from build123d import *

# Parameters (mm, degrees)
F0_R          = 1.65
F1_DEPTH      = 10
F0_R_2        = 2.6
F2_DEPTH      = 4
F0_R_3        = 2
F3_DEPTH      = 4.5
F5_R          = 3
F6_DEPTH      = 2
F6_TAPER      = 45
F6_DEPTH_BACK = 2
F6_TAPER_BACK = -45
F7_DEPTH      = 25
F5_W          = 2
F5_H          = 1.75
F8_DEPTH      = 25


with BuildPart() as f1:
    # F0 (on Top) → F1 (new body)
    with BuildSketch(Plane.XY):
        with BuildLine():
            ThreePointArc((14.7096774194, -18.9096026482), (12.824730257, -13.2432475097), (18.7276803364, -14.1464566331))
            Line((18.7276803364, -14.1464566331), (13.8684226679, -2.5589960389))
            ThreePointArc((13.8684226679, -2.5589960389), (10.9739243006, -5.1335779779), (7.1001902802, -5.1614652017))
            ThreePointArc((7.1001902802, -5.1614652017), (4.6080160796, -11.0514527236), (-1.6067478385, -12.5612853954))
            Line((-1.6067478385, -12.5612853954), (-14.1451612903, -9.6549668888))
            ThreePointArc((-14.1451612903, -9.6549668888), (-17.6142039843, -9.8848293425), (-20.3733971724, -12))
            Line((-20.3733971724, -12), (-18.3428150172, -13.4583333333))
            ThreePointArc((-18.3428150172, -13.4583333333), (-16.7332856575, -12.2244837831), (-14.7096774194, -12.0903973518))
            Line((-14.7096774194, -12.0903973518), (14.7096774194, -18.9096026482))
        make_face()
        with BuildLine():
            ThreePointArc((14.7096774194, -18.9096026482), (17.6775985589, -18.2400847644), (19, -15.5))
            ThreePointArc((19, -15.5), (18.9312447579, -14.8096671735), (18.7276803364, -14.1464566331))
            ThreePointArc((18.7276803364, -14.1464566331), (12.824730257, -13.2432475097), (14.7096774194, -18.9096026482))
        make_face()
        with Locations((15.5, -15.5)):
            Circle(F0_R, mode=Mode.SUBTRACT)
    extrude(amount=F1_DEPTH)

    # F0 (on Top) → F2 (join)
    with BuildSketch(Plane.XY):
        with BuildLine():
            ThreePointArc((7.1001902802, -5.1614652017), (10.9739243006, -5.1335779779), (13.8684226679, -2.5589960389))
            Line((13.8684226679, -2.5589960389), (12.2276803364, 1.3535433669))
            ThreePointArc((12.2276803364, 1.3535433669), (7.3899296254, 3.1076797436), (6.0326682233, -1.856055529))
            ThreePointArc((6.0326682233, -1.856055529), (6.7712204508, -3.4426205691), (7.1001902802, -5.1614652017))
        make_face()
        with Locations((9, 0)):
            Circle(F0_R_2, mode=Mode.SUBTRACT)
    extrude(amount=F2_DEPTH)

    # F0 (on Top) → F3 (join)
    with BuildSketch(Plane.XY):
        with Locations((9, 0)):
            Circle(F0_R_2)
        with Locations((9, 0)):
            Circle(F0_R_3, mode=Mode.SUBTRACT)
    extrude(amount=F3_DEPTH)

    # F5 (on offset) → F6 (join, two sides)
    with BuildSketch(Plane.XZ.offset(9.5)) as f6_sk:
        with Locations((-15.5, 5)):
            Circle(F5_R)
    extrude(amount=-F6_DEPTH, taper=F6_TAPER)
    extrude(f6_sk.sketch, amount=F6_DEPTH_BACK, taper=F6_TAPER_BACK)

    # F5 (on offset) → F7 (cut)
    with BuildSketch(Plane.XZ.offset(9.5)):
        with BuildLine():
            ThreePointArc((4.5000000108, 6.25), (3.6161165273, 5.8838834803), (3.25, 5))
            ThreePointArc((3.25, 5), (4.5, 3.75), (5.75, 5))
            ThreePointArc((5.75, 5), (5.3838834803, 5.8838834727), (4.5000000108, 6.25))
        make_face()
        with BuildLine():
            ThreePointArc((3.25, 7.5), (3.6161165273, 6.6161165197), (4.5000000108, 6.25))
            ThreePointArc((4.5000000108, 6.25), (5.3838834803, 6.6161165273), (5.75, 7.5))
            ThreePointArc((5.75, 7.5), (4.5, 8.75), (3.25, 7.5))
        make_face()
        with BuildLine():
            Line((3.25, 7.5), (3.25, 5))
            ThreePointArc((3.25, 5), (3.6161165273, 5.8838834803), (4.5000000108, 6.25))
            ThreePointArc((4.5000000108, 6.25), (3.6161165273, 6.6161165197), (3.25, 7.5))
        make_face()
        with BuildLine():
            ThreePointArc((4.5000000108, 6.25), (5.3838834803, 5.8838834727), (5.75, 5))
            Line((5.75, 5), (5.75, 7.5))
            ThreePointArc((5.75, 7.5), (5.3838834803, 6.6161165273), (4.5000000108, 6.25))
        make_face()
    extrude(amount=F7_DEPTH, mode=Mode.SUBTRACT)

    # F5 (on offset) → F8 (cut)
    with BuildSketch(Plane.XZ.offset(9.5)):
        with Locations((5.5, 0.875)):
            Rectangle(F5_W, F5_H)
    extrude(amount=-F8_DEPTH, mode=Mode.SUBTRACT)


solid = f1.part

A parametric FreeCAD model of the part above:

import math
import FreeCAD as App
import Part
import Sketcher

V = App.Vector

doc = App.newDocument("Part")
body = doc.addObject("PartDesign::Body", "Body")
body.AllowCompound = True

# Sketch on XY plane
sketch1 = doc.addObject("Sketcher::SketchObject", "Sketch")
body.addObject(sketch1)
sketch1.AttachmentSupport = (doc.XY_Plane, [""])
sketch1.MapMode = "FlatFace"
sketch1.addGeometry(Part.LineSegment(V(18.72768, -14.146457, 0), V(13.868423, -2.558996, 0)), False)
sketch1.addGeometry(Part.ArcOfCircle(Part.Circle(V(9, 0, 0), V(0, 0, 1), 5.5), math.radians(-110.207433), math.radians(-27.727827)), False)
sketch1.addGeometry(Part.ArcOfCircle(Part.Circle(V(0, -5.629468, 0), V(0, 0, 1), 7.115598), math.radians(-103.050305), math.radians(3.771147)), False)
sketch1.addGeometry(Part.LineSegment(V(-1.606748, -12.561285, 0), V(-14.145161, -9.654967, 0)), False)
sketch1.addGeometry(Part.ArcOfCircle(Part.Circle(V(-15.5, -15.5, 0), V(0, 0, 1), 6), math.radians(76.949695), math.radians(144.314665)), False)
sketch1.addGeometry(Part.LineSegment(V(-20.373397, -12, 0), V(-18.342815, -13.458333, 0)), False)
sketch1.addGeometry(Part.ArcOfCircle(Part.Circle(V(-15.5, -15.5, 0), V(0, 0, 1), 3.5), math.radians(76.949695), math.radians(144.314665)), False)
sketch1.addGeometry(Part.LineSegment(V(-14.709677, -12.090397, 0), V(14.709677, -18.909603, 0)), False)
sketch1.addGeometry(Part.ArcOfCircle(Part.Circle(V(15.5, -15.5, 0), V(0, 0, 1), 3.5), math.radians(-103.050305), math.radians(0)), False)
sketch1.addGeometry(Part.ArcOfCircle(Part.Circle(V(15.5, -15.5, 0), V(0, 0, 1), 3.5), math.radians(0), math.radians(22.750976)), False)
sketch1.addGeometry(Part.Circle(V(15.5, -15.5, 0), V(0, 0, 1), 1.65), False)
sketch1.addConstraint(Sketcher.Constraint("Coincident", 0, 2, 1, 2))
sketch1.addConstraint(Sketcher.Constraint("Coincident", 1, 1, 2, 2))
sketch1.addConstraint(Sketcher.Constraint("Tangent", 2, 1, 3, 1))
sketch1.addConstraint(Sketcher.Constraint("Tangent", 3, 2, 4, 1))
sketch1.addConstraint(Sketcher.Constraint("Coincident", 4, 2, 5, 1))
sketch1.addConstraint(Sketcher.Constraint("Coincident", 5, 2, 6, 2))
sketch1.addConstraint(Sketcher.Constraint("Tangent", 6, 1, 7, 1))
sketch1.addConstraint(Sketcher.Constraint("Tangent", 7, 2, 8, 1))
sketch1.addConstraint(Sketcher.Constraint("Tangent", 8, 2, 9, 1))
sketch1.addConstraint(Sketcher.Constraint("Tangent", 9, 2, 0, 1))
sketch1.addConstraint(Sketcher.Constraint("Coincident", 6, 3, 4, 3))
sketch1.addConstraint(Sketcher.Constraint("Coincident", 10, 3, 8, 3))
sketch1.addConstraint(Sketcher.Constraint("Equal", 6, 8))
sketch1.addConstraint(Sketcher.Constraint("Equal", 8, 9))
sketch1.addConstraint(Sketcher.Constraint("Symmetric", 4, 3, 8, 3, -2))
sketch1.addConstraint(Sketcher.Constraint("PointOnObject", 1, 3, -1))
sketch1.addConstraint(Sketcher.Constraint("PointOnObject", 2, 3, -2))
sketch1.addConstraint(Sketcher.Constraint("Parallel", 3, 7))
sketch1.addConstraint(Sketcher.Constraint("Horizontal", 10, 3, 8, 2))
sketch1.addConstraint(Sketcher.Constraint("Radius", 4, 6.0))
sketch1.addConstraint(Sketcher.Constraint("Diameter", 10, 3.3))
sketch1.addConstraint(Sketcher.Constraint("Radius", 1, 5.5))
sketch1.addConstraint(Sketcher.Constraint("Radius", 6, 3.5))
sketch1.addConstraint(Sketcher.Constraint("DistanceX", -1, 1, 1, 3, 9.0))
sketch1.addConstraint(Sketcher.Constraint("DistanceY", 4, 2, -1, 1, 12.0))
sketch1.addConstraint(Sketcher.Constraint("DistanceX", -1, 1, 8, 2, 19.0))
sketch1.addConstraint(Sketcher.Constraint("DistanceY", 4, 3, -1, 1, 15.5))
sketch1.addConstraint(Sketcher.Constraint("Radius", 2, 7.115598))
sketch1.addConstraint(Sketcher.Constraint("DistanceX", -1, 1, 9, 2, 18.72768))
sketch1.addConstraint(Sketcher.Constraint("DistanceX", 5, 2, -1, 1, 18.342815))
pad1 = doc.addObject("PartDesign::Pad", "Pad")
body.addObject(pad1)
pad1.Profile = sketch1
pad1.Length = 10

# Sketch on XY plane
sketch2 = doc.addObject("Sketcher::SketchObject", "Sketch001")
body.addObject(sketch2)
sketch2.AttachmentSupport = (doc.XY_Plane, [""])
sketch2.MapMode = "FlatFace"
sketch2.addGeometry(Part.ArcOfCircle(Part.Circle(V(9, 0, 0), V(0, 0, 1), 5.5), math.radians(-110.207433), math.radians(-27.727827)), False)
sketch2.addGeometry(Part.LineSegment(V(13.868423, -2.558996, 0), V(12.22768, 1.353543, 0)), False)
sketch2.addGeometry(Part.ArcOfCircle(Part.Circle(V(9, 0, 0), V(0, 0, 1), 3.5), math.radians(22.750976), math.radians(212.025834)), False)
sketch2.addGeometry(Part.ArcOfCircle(Part.Circle(V(0, -5.629468, 0), V(0, 0, 1), 7.115598), math.radians(3.771147), math.radians(32.025834)), False)
sketch2.addGeometry(Part.Circle(V(9, 0, 0), V(0, 0, 1), 2.6), False)
sketch2.addConstraint(Sketcher.Constraint("Coincident", 0, 2, 1, 1))
sketch2.addConstraint(Sketcher.Constraint("Tangent", 1, 2, 2, 1))
sketch2.addConstraint(Sketcher.Constraint("Tangent", 2, 2, 3, 2))
sketch2.addConstraint(Sketcher.Constraint("Coincident", 3, 1, 0, 1))
sketch2.addConstraint(Sketcher.Constraint("Coincident", 2, 3, 0, 3))
sketch2.addConstraint(Sketcher.Constraint("Coincident", 4, 3, 0, 3))
sketch2.addConstraint(Sketcher.Constraint("PointOnObject", 0, 3, -1))
sketch2.addConstraint(Sketcher.Constraint("PointOnObject", 3, 3, -2))
sketch2.addConstraint(Sketcher.Constraint("Diameter", 4, 5.2))
sketch2.addConstraint(Sketcher.Constraint("Radius", 0, 5.5))
sketch2.addConstraint(Sketcher.Constraint("Radius", 2, 3.5))
sketch2.addConstraint(Sketcher.Constraint("DistanceX", -1, 1, 0, 3, 9.0))
sketch2.addConstraint(Sketcher.Constraint("Radius", 3, 7.115598))
sketch2.addConstraint(Sketcher.Constraint("DistanceY", 2, 2, 1, 2, 3.209599))
pad2 = doc.addObject("PartDesign::Pad", "Pad001")
body.addObject(pad2)
pad2.Profile = sketch2
pad2.Length = 4

# Sketch on XY plane
sketch3 = doc.addObject("Sketcher::SketchObject", "Sketch002")
body.addObject(sketch3)
sketch3.AttachmentSupport = (doc.XY_Plane, [""])
sketch3.MapMode = "FlatFace"
sketch3.addGeometry(Part.Circle(V(9, 0, 0), V(0, 0, 1), 2.6), False)
sketch3.addGeometry(Part.Circle(V(9, 0, 0), V(0, 0, 1), 2), False)
sketch3.addConstraint(Sketcher.Constraint("Coincident", 1, 3, 0, 3))
sketch3.addConstraint(Sketcher.Constraint("PointOnObject", 0, 3, -1))
sketch3.addConstraint(Sketcher.Constraint("Diameter", 1, 4.0))
sketch3.addConstraint(Sketcher.Constraint("Diameter", 0, 5.2))
sketch3.addConstraint(Sketcher.Constraint("DistanceX", -1, 1, 0, 3, 9.0))
pad3 = doc.addObject("PartDesign::Pad", "Pad002")
body.addObject(pad3)
pad3.Profile = sketch3
pad3.Length = 4.5

# Sketch on XZ plane
sketch4 = doc.addObject("Sketcher::SketchObject", "Sketch003")
body.addObject(sketch4)
sketch4.AttachmentSupport = (doc.XZ_Plane, [""])
sketch4.MapMode = "FlatFace"
sketch4.AttachmentOffset = App.Placement(V(0, 0, 9.5), App.Rotation())
sketch4.addGeometry(Part.Circle(V(-15.5, 5, 0), V(0, 0, 1), 3), False)
sketch4.addConstraint(Sketcher.Constraint("Diameter", 0, 6.0))
sketch4.addConstraint(Sketcher.Constraint("DistanceY", -1, 1, 0, 3, 5.0))
sketch4.addConstraint(Sketcher.Constraint("DistanceX", 0, 3, -1, 1, 15.5))
pad4 = doc.addObject("PartDesign::Pad", "Pad003")
body.addObject(pad4)
pad4.Profile = sketch4
pad4.Length = 2
pad4.Reversed = True
pad4.TaperAngle = -45
pad5 = doc.addObject("PartDesign::Pad", "Pad004")
body.addObject(pad5)
pad5.Profile = sketch4
pad5.Length = 2
pad5.TaperAngle = 45

# Sketch on XZ plane
sketch5 = doc.addObject("Sketcher::SketchObject", "Sketch004")
body.addObject(sketch5)
sketch5.AttachmentSupport = (doc.XZ_Plane, [""])
sketch5.MapMode = "FlatFace"
sketch5.AttachmentOffset = App.Placement(V(0, 0, 9.5), App.Rotation())
sketch5.addGeometry(Part.ArcOfCircle(Part.Circle(V(4.5, 5, 0), V(0, 0, 1), 1.25), math.radians(180), math.radians(360)), False)
sketch5.addGeometry(Part.LineSegment(V(5.75, 5, 0), V(5.75, 7.5, 0)), False)
sketch5.addGeometry(Part.ArcOfCircle(Part.Circle(V(4.5, 7.5, 0), V(0, 0, 1), 1.25), math.radians(0), math.radians(180)), False)
sketch5.addGeometry(Part.LineSegment(V(3.25, 7.5, 0), V(3.25, 5, 0)), False)
sketch5.addConstraint(Sketcher.Constraint("Tangent", 0, 2, 1, 1))
sketch5.addConstraint(Sketcher.Constraint("Tangent", 1, 2, 2, 1))
sketch5.addConstraint(Sketcher.Constraint("Tangent", 2, 2, 3, 1))
sketch5.addConstraint(Sketcher.Constraint("Tangent", 3, 2, 0, 1))
sketch5.addConstraint(Sketcher.Constraint("Vertical", 1))
sketch5.addConstraint(Sketcher.Constraint("Vertical", 3))
sketch5.addConstraint(Sketcher.Constraint("Radius", 0, 1.25))
sketch5.addConstraint(Sketcher.Constraint("DistanceY", 1, 1, 1, 2, 2.5))
sketch5.addConstraint(Sketcher.Constraint("DistanceY", -1, 1, 0, 3, 5.0))
sketch5.addConstraint(Sketcher.Constraint("DistanceX", -1, 1, 0, 3, 4.5))
pocket1 = doc.addObject("PartDesign::Pocket", "Pocket")
body.addObject(pocket1)
pocket1.Profile = sketch5
pocket1.Length = 25
pocket1.Reversed = True

# Sketch on XZ plane
sketch6 = doc.addObject("Sketcher::SketchObject", "Sketch005")
body.addObject(sketch6)
sketch6.AttachmentSupport = (doc.XZ_Plane, [""])
sketch6.MapMode = "FlatFace"
sketch6.AttachmentOffset = App.Placement(V(0, 0, 9.5), App.Rotation())
sketch6.addGeometry(Part.LineSegment(V(4.5, 1.75, 0), V(4.5, 0, 0)), False)
sketch6.addGeometry(Part.LineSegment(V(4.5, 0, 0), V(6.5, 0, 0)), False)
sketch6.addGeometry(Part.LineSegment(V(6.5, 0, 0), V(6.5, 1.75, 0)), False)
sketch6.addGeometry(Part.LineSegment(V(6.5, 1.75, 0), V(4.5, 1.75, 0)), False)
sketch6.addConstraint(Sketcher.Constraint("Coincident", 0, 2, 1, 1))
sketch6.addConstraint(Sketcher.Constraint("Coincident", 1, 2, 2, 1))
sketch6.addConstraint(Sketcher.Constraint("Coincident", 2, 2, 3, 1))
sketch6.addConstraint(Sketcher.Constraint("Coincident", 3, 2, 0, 1))
sketch6.addConstraint(Sketcher.Constraint("Vertical", 0))
sketch6.addConstraint(Sketcher.Constraint("Horizontal", 1))
sketch6.addConstraint(Sketcher.Constraint("Vertical", 2))
sketch6.addConstraint(Sketcher.Constraint("Horizontal", 3))
sketch6.addConstraint(Sketcher.Constraint("PointOnObject", 0, 2, -1))
sketch6.addConstraint(Sketcher.Constraint("DistanceX", 1, 1, 1, 2, 2.0))
sketch6.addConstraint(Sketcher.Constraint("DistanceY", 0, 2, 0, 1, 1.75))
sketch6.addConstraint(Sketcher.Constraint("DistanceX", -1, 1, 0, 2, 4.5))
pocket2 = doc.addObject("PartDesign::Pocket", "Pocket001")
body.addObject(pocket2)
pocket2.Profile = sketch6
pocket2.Length = 25

doc.recompute()
